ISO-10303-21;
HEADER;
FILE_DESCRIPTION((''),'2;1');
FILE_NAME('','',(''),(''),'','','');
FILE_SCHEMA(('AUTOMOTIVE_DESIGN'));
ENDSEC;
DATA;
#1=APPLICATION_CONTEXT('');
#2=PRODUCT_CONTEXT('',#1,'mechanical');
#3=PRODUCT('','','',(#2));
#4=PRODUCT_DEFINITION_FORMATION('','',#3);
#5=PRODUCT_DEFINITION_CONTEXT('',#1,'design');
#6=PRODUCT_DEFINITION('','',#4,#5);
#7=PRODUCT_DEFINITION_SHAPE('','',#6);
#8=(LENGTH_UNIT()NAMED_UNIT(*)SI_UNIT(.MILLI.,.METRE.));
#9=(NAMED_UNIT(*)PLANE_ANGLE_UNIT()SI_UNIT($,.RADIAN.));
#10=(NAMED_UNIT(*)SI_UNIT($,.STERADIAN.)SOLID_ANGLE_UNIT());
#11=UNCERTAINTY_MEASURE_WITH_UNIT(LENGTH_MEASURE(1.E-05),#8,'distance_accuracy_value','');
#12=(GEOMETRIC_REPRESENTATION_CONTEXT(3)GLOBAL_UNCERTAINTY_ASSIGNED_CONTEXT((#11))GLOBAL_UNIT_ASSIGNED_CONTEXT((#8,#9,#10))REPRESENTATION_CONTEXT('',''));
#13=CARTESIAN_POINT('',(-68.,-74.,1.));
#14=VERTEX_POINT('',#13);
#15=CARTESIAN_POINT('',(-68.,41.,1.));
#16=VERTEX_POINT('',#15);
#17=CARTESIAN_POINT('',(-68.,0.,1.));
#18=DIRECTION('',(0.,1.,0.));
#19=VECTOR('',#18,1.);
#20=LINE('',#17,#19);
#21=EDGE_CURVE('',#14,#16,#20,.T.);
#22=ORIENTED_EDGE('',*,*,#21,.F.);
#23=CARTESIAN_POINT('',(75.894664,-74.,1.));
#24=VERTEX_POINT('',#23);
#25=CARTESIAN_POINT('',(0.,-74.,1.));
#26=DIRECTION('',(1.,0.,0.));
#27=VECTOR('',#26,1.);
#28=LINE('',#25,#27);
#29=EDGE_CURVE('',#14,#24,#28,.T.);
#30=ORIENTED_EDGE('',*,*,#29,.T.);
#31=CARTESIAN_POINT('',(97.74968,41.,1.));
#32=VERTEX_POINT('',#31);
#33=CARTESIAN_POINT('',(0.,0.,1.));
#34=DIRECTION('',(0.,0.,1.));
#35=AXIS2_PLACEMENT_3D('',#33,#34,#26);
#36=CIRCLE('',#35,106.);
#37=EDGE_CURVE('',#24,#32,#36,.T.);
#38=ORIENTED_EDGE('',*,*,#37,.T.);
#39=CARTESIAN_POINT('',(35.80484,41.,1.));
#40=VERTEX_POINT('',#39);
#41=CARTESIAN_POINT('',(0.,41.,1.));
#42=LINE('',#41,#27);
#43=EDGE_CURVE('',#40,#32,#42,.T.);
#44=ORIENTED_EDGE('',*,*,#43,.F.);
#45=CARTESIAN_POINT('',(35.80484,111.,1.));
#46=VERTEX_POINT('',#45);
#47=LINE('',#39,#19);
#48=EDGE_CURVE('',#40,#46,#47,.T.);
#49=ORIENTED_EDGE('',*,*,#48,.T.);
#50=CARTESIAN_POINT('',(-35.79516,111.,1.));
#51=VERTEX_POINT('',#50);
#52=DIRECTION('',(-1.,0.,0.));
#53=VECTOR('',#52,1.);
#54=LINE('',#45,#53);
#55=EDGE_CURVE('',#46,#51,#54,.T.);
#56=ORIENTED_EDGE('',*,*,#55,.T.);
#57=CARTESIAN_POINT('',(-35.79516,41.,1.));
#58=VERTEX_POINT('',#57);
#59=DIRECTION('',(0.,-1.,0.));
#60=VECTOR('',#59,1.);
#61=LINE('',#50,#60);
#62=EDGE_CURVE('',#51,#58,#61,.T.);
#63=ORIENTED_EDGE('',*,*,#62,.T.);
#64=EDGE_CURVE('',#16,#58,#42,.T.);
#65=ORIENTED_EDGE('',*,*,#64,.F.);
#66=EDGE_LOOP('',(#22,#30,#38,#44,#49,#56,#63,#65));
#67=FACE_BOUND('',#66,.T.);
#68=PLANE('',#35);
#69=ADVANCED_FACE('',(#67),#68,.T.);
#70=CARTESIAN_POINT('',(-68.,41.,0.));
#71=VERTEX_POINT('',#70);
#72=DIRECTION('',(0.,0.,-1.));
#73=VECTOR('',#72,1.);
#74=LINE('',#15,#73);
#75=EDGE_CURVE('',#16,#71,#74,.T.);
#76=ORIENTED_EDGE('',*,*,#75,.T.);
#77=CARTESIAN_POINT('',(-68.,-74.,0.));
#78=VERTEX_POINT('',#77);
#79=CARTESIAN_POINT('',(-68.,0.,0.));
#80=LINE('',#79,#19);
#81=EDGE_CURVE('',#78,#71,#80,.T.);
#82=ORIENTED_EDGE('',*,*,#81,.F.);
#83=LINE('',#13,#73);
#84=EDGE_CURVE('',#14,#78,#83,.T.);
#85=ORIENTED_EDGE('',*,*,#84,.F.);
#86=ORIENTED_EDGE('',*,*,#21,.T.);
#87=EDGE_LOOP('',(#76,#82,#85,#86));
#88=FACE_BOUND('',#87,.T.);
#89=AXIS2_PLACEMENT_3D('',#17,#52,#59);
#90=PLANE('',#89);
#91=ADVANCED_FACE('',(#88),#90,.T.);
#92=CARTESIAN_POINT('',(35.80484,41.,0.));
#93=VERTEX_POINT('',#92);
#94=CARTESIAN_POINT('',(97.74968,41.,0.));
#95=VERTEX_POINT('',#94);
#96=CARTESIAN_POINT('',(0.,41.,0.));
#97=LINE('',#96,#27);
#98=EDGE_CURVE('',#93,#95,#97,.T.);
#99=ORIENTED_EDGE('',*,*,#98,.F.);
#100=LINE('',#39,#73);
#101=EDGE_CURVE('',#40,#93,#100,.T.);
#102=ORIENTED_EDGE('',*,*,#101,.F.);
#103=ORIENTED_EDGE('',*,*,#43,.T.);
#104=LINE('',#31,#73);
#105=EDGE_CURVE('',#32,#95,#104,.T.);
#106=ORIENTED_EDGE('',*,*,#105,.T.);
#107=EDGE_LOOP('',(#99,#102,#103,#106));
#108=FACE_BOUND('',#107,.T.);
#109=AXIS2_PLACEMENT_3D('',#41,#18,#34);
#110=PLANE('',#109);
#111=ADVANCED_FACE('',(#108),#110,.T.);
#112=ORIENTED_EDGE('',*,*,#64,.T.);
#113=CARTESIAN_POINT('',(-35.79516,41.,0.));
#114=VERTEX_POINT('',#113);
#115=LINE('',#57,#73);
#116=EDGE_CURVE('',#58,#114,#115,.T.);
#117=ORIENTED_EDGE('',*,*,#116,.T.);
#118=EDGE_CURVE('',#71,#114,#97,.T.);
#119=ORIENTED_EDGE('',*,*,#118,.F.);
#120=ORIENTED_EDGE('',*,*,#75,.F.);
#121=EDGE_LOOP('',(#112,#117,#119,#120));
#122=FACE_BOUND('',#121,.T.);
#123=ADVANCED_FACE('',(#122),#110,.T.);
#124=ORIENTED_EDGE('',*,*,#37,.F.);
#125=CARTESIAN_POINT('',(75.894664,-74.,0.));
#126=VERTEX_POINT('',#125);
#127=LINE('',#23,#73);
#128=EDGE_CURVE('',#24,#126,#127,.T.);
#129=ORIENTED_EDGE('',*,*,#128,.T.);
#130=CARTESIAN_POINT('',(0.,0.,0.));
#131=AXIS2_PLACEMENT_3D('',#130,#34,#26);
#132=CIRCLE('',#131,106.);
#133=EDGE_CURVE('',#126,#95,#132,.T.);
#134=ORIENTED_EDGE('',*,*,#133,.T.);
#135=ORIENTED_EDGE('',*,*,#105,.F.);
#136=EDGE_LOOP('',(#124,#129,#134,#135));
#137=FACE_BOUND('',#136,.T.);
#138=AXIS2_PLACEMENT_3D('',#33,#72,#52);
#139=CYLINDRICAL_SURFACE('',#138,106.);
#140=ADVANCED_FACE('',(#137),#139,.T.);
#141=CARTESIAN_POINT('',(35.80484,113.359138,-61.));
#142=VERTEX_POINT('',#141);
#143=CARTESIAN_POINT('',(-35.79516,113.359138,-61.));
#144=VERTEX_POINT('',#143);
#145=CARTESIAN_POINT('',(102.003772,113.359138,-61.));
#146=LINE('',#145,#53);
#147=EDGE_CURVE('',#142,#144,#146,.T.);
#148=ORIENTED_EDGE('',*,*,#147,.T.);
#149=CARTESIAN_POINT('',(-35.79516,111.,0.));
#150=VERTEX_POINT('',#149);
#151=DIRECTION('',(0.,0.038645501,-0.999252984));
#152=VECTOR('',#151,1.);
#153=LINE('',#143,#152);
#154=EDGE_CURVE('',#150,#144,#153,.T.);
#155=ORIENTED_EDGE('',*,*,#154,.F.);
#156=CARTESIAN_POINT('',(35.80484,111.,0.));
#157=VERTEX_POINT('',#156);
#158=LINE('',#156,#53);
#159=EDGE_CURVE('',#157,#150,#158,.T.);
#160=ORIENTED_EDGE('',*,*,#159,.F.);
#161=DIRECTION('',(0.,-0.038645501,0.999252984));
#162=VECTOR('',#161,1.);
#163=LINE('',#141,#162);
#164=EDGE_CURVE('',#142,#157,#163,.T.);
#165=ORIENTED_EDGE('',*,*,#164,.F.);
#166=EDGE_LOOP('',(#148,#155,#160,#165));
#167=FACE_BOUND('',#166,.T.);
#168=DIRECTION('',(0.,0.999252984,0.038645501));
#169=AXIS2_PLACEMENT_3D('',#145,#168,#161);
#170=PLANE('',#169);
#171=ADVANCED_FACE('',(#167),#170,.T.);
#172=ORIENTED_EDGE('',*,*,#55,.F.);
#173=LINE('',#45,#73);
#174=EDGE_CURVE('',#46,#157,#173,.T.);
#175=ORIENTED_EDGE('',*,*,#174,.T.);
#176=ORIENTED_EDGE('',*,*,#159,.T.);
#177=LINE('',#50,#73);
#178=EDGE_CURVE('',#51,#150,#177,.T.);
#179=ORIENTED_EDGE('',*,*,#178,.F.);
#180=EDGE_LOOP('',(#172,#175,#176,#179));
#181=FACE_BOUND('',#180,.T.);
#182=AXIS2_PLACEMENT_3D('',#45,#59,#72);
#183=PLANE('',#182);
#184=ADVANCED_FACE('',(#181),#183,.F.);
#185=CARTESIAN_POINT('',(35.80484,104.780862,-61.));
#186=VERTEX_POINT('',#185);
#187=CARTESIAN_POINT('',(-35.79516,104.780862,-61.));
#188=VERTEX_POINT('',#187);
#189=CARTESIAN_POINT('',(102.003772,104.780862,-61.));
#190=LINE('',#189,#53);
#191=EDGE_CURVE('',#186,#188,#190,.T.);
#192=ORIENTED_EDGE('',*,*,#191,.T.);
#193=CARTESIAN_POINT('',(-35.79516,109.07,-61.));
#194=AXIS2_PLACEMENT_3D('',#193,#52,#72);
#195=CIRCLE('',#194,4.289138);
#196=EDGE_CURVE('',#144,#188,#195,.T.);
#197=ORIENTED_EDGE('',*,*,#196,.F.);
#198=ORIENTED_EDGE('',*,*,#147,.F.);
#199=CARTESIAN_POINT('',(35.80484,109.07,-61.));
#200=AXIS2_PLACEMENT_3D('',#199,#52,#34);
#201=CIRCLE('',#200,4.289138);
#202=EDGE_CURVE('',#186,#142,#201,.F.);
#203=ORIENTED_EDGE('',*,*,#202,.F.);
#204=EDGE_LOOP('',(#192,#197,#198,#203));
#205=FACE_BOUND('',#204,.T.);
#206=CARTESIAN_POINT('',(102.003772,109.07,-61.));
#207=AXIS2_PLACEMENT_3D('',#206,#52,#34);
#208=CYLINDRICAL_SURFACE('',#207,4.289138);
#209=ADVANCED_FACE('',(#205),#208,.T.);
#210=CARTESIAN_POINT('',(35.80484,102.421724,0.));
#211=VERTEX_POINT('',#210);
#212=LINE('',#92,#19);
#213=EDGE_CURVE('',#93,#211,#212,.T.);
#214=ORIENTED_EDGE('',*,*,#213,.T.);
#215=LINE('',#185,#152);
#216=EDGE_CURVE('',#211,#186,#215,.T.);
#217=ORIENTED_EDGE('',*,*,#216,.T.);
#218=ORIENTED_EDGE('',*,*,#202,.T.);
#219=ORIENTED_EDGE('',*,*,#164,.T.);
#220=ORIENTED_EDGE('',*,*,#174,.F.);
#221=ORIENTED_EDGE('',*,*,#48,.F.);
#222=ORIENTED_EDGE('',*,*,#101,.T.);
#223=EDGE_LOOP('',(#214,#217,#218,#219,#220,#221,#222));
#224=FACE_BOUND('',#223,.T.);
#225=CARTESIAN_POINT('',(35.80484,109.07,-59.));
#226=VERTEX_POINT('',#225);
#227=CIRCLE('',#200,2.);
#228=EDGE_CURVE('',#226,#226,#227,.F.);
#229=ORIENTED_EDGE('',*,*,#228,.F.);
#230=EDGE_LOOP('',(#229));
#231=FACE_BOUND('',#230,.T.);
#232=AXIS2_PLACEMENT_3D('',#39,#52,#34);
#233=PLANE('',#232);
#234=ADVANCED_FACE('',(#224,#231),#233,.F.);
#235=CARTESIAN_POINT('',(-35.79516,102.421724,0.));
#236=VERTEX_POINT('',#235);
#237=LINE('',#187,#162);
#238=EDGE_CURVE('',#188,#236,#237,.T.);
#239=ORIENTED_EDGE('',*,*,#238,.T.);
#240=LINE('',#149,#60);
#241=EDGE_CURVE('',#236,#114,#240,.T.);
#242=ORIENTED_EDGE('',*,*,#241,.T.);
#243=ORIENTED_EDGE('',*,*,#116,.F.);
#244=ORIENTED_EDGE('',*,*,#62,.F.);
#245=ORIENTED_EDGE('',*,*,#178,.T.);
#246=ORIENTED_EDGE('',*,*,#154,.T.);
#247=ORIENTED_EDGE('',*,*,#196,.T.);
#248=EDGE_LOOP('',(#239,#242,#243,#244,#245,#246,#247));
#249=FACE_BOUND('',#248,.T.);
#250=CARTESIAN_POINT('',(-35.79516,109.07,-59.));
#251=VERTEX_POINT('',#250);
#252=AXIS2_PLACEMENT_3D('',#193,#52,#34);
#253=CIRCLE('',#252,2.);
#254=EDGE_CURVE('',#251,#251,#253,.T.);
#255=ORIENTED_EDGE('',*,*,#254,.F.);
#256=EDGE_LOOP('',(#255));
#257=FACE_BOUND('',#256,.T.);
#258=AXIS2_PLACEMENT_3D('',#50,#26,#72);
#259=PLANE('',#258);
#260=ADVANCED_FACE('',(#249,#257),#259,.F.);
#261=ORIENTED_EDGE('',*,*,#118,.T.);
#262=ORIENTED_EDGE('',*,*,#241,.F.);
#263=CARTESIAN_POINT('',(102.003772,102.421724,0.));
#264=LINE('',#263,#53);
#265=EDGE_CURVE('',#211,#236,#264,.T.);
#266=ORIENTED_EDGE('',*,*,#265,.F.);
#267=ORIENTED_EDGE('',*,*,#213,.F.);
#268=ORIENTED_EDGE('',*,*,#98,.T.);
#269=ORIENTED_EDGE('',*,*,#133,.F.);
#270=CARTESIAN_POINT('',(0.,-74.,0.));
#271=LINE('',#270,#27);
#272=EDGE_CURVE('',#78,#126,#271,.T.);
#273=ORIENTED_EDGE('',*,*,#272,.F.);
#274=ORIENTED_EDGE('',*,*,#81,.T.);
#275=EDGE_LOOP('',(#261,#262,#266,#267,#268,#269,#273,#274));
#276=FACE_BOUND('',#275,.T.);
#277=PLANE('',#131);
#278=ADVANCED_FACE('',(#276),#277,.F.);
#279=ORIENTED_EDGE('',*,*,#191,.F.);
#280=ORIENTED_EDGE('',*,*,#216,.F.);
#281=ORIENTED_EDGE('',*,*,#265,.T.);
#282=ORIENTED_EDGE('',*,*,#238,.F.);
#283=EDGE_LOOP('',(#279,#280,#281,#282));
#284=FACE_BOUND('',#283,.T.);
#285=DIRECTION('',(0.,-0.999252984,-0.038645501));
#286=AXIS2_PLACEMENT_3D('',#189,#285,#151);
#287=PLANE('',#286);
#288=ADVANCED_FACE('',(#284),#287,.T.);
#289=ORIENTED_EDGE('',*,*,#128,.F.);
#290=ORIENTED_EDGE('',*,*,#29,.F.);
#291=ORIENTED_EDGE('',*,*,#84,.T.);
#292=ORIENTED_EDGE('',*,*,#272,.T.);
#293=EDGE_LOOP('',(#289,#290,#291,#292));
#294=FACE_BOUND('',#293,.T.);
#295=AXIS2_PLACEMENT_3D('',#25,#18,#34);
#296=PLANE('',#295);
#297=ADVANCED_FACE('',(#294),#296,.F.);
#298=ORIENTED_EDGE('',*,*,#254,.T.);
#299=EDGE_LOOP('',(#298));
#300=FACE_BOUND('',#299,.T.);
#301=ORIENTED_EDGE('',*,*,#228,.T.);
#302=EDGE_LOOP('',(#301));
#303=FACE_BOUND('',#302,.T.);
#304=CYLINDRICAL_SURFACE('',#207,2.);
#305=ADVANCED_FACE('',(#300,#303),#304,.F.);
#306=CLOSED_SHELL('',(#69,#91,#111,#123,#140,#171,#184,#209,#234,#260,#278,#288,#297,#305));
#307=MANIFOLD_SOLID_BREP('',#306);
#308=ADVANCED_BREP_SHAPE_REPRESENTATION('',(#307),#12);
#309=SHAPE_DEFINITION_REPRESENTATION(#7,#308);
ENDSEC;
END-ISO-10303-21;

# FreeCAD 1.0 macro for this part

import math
import FreeCAD as App
import Part
import Sketcher
from FreeCAD import Vector
Q = App.Units.Quantity

doc = App.newDocument("Part")
params = doc.addObject("Spreadsheet::Sheet", "Params")
for row, (alias, value) in enumerate([
    ("sketch1_radius", "106 mm"),
    ("sketch1_height", "115 mm"),
    ("pad1_length", "1 mm"),
    ("sketch2_height", "70 mm"),
    ("sketch2_width", "71.6 mm"),
    ("pad2_length", "1 mm"),
    ("sketch3_diameter", "4 mm"),
    ("pad3_length", "71.6 mm"),
], start=1):
    params.set(f"A{row}", alias)
    params.set(f"B{row}", "=" + value)
    params.setAlias(f"B{row}", alias)

body = doc.addObject("PartDesign::Body", "Body")

# Sketch on XY plane
sketch1 = body.newObject("Sketcher::SketchObject", "Sketch")
sketch1.AttachmentSupport = (doc.getObject("XY_Plane"), [""])
sketch1.MapMode = "FlatFace"
sketch1.addGeometry([
    Part.LineSegment(Vector(-68, 41, 0), Vector(-68, -74, 0)),
    Part.LineSegment(Vector(-68, -74, 0), Vector(76, -74, 0)),
    Part.ArcOfCircle(Part.Circle(Vector(0, 0, 0), Vector(0, 0, 1), 106), math.radians(-44), math.radians(23)),
    Part.LineSegment(Vector(98, 41, 0), Vector(-68, 41, 0)),
], False)
sketch1.addConstraint([
    Sketcher.Constraint("Coincident", 0, 2, 1, 1),
    Sketcher.Constraint("Coincident", 1, 2, 2, 1),
    Sketcher.Constraint("Coincident", 2, 2, 3, 1),
    Sketcher.Constraint("Coincident", 3, 2, 0, 1),
    Sketcher.Constraint("Vertical", 0),
    Sketcher.Constraint("Horizontal", 1),
    Sketcher.Constraint("Horizontal", 3),
    Sketcher.Constraint("Coincident", 2, 3, -1, 1),
    Sketcher.Constraint("Radius", 2, Q("106 mm")),
    Sketcher.Constraint("DistanceY", 0, 2, 0, 1, Q("115 mm")),
    Sketcher.Constraint("DistanceX", 0, 2, -1, 1, Q("68 mm")),
    Sketcher.Constraint("DistanceY", 0, 2, -1, 1, Q("74 mm")),
])
sketch1.setExpression("Constraints[8]", "Params.sketch1_radius")
sketch1.setExpression("Constraints[9]", "Params.sketch1_height")
pad1 = body.newObject("PartDesign::Pad", "Pad")
pad1.Profile = sketch1
pad1.setExpression("Length", "Params.pad1_length")

# Sketch on XY plane
sketch2 = body.newObject("Sketcher::SketchObject", "Sketch001")
sketch2.AttachmentSupport = (doc.getObject("XY_Plane"), [""])
sketch2.MapMode = "FlatFace"
sketch2.addGeometry([
    Part.LineSegment(Vector(36, 111, 0), Vector(36, 41, 0)),
    Part.LineSegment(Vector(36, 41, 0), Vector(-36, 41, 0)),
    Part.LineSegment(Vector(-36, 41, 0), Vector(-36, 111, 0)),
    Part.LineSegment(Vector(-36, 111, 0), Vector(36, 111, 0)),
], False)
sketch2.addConstraint([
    Sketcher.Constraint("Coincident", 0, 2, 1, 1),
    Sketcher.Constraint("Coincident", 1, 2, 2, 1),
    Sketcher.Constraint("Coincident", 2, 2, 3, 1),
    Sketcher.Constraint("Coincident", 3, 2, 0, 1),
    Sketcher.Constraint("Vertical", 0),
    Sketcher.Constraint("Horizontal", 1),
    Sketcher.Constraint("Vertical", 2),
    Sketcher.Constraint("Horizontal", 3),
    Sketcher.Constraint("DistanceY", 0, 2, 0, 1, Q("70 mm")),
    Sketcher.Constraint("DistanceX", 1, 2, 1, 1, Q("71.6 mm")),
    Sketcher.Constraint("DistanceY", -1, 1, 0, 2, Q("41 mm")),
    Sketcher.Constraint("DistanceX", -1, 1, 0, 2, Q("35.80484 mm")),
])
sketch2.setExpression("Constraints[8]", "Params.sketch2_height")
sketch2.setExpression("Constraints[9]", "Params.sketch2_width")
pad2 = body.newObject("PartDesign::Pad", "Pad001")
pad2.Profile = sketch2
pad2.setExpression("Length", "Params.pad2_length")

# Sketch on YZ plane
sketch3 = body.newObject("Sketcher::SketchObject", "Sketch002")
sketch3.AttachmentSupport = (doc.getObject("YZ_Plane"), [""])
sketch3.MapMode = "FlatFace"
sketch3.AttachmentOffset = App.Placement(Vector(0, 0, -35.79516), App.Rotation())
sketch3.addGeometry([
    Part.LineSegment(Vector(111, 0, 0), Vector(113.4, -61, 0)),  # 0
    Part.ArcOfCircle(Part.Circle(Vector(109.1, -61, 0), Vector(0, 0, 1), 4.3), math.radians(180), math.radians(360)),  # 1
    Part.LineSegment(Vector(104.8, -61, 0), Vector(102.4, 0, 0)),  # 2
    Part.LineSegment(Vector(102.4, 0, 0), Vector(111, 0, 0)),  # 3
    Part.Circle(Vector(109.1, -61, 0), Vector(0, 0, 1), 2),  # 4
], False)
sketch3.addConstraint([
    Sketcher.Constraint("Coincident", 0, 2, 1, 2),
    Sketcher.Constraint("Coincident", 1, 1, 2, 1),
    Sketcher.Constraint("Coincident", 2, 2, 3, 1),
    Sketcher.Constraint("Coincident", 3, 2, 0, 1),
    Sketcher.Constraint("Horizontal", 3),
    Sketcher.Constraint("Coincident", 4, 3, 1, 3),
    Sketcher.Constraint("PointOnObject", 2, 2, -1),
    Sketcher.Constraint("Parallel", 0, 2),
    Sketcher.Constraint("Horizontal", 4, 3, 0, 2),
    Sketcher.Constraint("Horizontal", 0, 2, 1, 1),
    Sketcher.Constraint("Diameter", 4, Q("4 mm")),
    Sketcher.Constraint("DistanceY", 1, 3, -1, 1, Q("61 mm")),
    Sketcher.Constraint("DistanceX", -1, 1, 3, 2, Q("111 mm")),
    Sketcher.Constraint("DistanceX", -1, 1, 1, 3, Q("109.07 mm")),
    Sketcher.Constraint("Radius", 1, Q("4.289138 mm")),
])
sketch3.setExpression("Constraints[10]", "Params.sketch3_diameter")
pad3 = body.newObject("PartDesign::Pad", "Pad002")
pad3.Profile = sketch3
pad3.setExpression("Length", "Params.pad3_length")

doc.recompute()
